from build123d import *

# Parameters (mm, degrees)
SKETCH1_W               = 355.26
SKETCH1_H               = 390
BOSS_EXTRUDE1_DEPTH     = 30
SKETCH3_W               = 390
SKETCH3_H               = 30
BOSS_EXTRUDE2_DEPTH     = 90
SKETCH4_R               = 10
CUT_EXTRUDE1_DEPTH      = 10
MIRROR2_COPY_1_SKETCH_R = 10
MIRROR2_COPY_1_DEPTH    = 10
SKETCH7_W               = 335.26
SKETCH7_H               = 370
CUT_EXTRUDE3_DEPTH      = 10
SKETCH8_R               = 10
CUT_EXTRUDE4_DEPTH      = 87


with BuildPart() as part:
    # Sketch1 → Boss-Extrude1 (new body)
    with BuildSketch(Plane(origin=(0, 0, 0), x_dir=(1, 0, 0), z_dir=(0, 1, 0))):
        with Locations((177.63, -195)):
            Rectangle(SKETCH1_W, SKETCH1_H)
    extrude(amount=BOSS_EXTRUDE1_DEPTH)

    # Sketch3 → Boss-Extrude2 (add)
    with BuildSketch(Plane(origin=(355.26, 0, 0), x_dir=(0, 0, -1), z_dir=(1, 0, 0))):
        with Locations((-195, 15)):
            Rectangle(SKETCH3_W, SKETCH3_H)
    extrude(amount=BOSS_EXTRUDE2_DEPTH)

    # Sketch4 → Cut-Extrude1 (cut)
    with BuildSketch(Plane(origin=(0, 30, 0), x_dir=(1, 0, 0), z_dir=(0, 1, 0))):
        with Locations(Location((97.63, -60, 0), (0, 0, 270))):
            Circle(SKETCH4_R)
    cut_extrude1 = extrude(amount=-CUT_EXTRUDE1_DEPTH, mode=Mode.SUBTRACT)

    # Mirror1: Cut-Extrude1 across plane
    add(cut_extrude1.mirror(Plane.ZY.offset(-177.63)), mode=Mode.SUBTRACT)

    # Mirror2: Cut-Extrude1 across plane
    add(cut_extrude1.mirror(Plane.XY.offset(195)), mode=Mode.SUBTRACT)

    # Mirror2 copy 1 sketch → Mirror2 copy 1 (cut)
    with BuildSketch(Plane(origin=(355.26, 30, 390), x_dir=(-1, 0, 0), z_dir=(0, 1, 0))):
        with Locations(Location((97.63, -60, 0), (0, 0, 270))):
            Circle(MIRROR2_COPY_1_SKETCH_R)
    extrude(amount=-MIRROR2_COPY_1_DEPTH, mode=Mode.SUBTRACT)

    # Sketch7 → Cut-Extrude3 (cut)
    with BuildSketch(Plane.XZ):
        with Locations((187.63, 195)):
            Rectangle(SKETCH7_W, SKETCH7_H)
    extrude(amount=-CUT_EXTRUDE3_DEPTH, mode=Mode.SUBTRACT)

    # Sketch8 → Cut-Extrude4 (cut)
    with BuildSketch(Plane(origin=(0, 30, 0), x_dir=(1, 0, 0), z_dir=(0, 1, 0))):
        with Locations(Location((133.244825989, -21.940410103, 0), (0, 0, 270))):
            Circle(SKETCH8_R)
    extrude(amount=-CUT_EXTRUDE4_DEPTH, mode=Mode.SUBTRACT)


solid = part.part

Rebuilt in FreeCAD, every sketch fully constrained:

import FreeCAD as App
import Part
import Sketcher
Q = App.Units.Quantity

doc = App.newDocument("Part")
body = doc.addObject("PartDesign::Body", "Body")

# Sketch on XZ plane
sketch1 = body.newObject("Sketcher::SketchObject", "Sketch")
sketch1.AttachmentSupport = (doc.getObject("XZ_Plane"), [""])
sketch1.MapMode = "FlatFace"
sketch1.addGeometry([
    Part.LineSegment(App.Vector(0, 0, 0), App.Vector(0, 390, 0)),
    Part.LineSegment(App.Vector(0, 390, 0), App.Vector(355, 390, 0)),
    Part.LineSegment(App.Vector(355, 390, 0), App.Vector(355, 0, 0)),
    Part.LineSegment(App.Vector(355, 0, 0), App.Vector(0, 0, 0)),
], False)
sketch1.addConstraint([
    Sketcher.Constraint("Coincident", 0, 2, 1, 1),
    Sketcher.Constraint("Coincident", 1, 2, 2, 1),
    Sketcher.Constraint("Coincident", 2, 2, 3, 1),
    Sketcher.Constraint("Coincident", 3, 2, 0, 1),
    Sketcher.Constraint("Vertical", 0),
    Sketcher.Constraint("Horizontal", 1),
    Sketcher.Constraint("Vertical", 2),
    Sketcher.Constraint("Horizontal", 3),
    Sketcher.Constraint("Coincident", 3, 2, -1, 1),
    Sketcher.Constraint("DistanceY", 0, 1, 0, 2, Q("390 mm")),
    Sketcher.Constraint("DistanceX", 1, 1, 1, 2, Q("355.26 mm")),
])
pad1 = body.newObject("PartDesign::Pad", "Pad")
pad1.Profile = sketch1
pad1.Length = 30
pad1.Reversed = True

# Sketch on YZ plane
sketch2 = body.newObject("Sketcher::SketchObject", "Sketch001")
sketch2.AttachmentSupport = (doc.getObject("YZ_Plane"), [""])
sketch2.MapMode = "FlatFace"
sketch2.AttachmentOffset = App.Placement(App.Vector(0, 0, 355.26), App.Rotation())
sketch2.addGeometry([
    Part.LineSegment(App.Vector(30, 390, 0), App.Vector(0, 390, 0)),
    Part.LineSegment(App.Vector(0, 390, 0), App.Vector(0, 0, 0)),
    Part.LineSegment(App.Vector(0, 0, 0), App.Vector(30, 0, 0)),
    Part.LineSegment(App.Vector(30, 0, 0), App.Vector(30, 390, 0)),
], False)
sketch2.addConstraint([
    Sketcher.Constraint("Coincident", 0, 2, 1, 1),
    Sketcher.Constraint("Coincident", 1, 2, 2, 1),
    Sketcher.Constraint("Coincident", 2, 2, 3, 1),
    Sketcher.Constraint("Coincident", 3, 2, 0, 1),
    Sketcher.Constraint("Horizontal", 0),
    Sketcher.Constraint("Vertical", 1),
    Sketcher.Constraint("Horizontal", 2),
    Sketcher.Constraint("Vertical", 3),
    Sketcher.Constraint("Coincident", 1, 2, -1, 1),
    Sketcher.Constraint("DistanceX", 0, 2, 0, 1, Q("30 mm")),
    Sketcher.Constraint("DistanceY", 1, 2, 1, 1, Q("390 mm")),
])
pad2 = body.newObject("PartDesign::Pad", "Pad001")
pad2.Profile = sketch2
pad2.Length = 90

# Sketch on XZ plane
sketch3 = body.newObject("Sketcher::SketchObject", "Sketch002")
sketch3.AttachmentSupport = (doc.getObject("XZ_Plane"), [""])
sketch3.MapMode = "FlatFace"
sketch3.AttachmentOffset = App.Placement(App.Vector(0, 0, -30), App.Rotation())
sketch3.addGeometry(Part.Circle(App.Vector(98, 60, 0), App.Vector(0, 0, 1), 10), False)
sketch3.addConstraint([
    Sketcher.Constraint("Diameter", 0, Q("20 mm")),
    Sketcher.Constraint("DistanceY", -1, 1, 0, 3, Q("60 mm")),
    Sketcher.Constraint("DistanceX", -1, 1, 0, 3, Q("97.63 mm")),
])
pocket1 = body.newObject("PartDesign::Pocket", "Pocket")
pocket1.Profile = sketch3
pocket1.Length = 10
pocket1.Reversed = True
doc.recompute()

datumplane = body.newObject("PartDesign::Plane", "DatumPlane")
datumplane.AttachmentSupport = (doc.getObject("YZ_Plane"), [""])
datumplane.MapMode = "FlatFace"
datumplane.AttachmentOffset = App.Placement(App.Vector(0, 0, 177.63), App.Rotation())
mirrored = body.newObject("PartDesign::Mirrored", "Mirrored")
mirrored.Originals = [pocket1]
mirrored.MirrorPlane = (datumplane, [""])
body.Tip = mirrored
doc.recompute()

datumplane2 = body.newObject("PartDesign::Plane", "DatumPlane001")
datumplane2.AttachmentSupport = (doc.getObject("XY_Plane"), [""])
datumplane2.MapMode = "FlatFace"
datumplane2.AttachmentOffset = App.Placement(App.Vector(0, 0, 195), App.Rotation())
mirrored2 = body.newObject("PartDesign::Mirrored", "Mirrored001")
mirrored2.Originals = [pocket1]
mirrored2.MirrorPlane = (datumplane2, [""])
body.Tip = mirrored2

# Sketch on XZ plane
sketch4 = body.newObject("Sketcher::SketchObject", "Sketch003")
sketch4.AttachmentSupport = (doc.getObject("XZ_Plane"), [""])
sketch4.MapMode = "FlatFace"
sketch4.AttachmentOffset = App.Placement(App.Vector(0, 0, -30), App.Rotation())
sketch4.addGeometry(Part.Circle(App.Vector(258, 330, 0), App.Vector(0, 0, 1), 10), False)
sketch4.addConstraint([
    Sketcher.Constraint("Diameter", 0, Q("20 mm")),
    Sketcher.Constraint("DistanceY", -1, 1, 0, 3, Q("330 mm")),
    Sketcher.Constraint("DistanceX", -1, 1, 0, 3, Q("257.63 mm")),
])
pocket2 = body.newObject("PartDesign::Pocket", "Pocket001")
pocket2.Profile = sketch4
pocket2.Length = 10
pocket2.Reversed = True

# Sketch on XZ plane
sketch5 = body.newObject("Sketcher::SketchObject", "Sketch004")
sketch5.AttachmentSupport = (doc.getObject("XZ_Plane"), [""])
sketch5.MapMode = "FlatFace"
sketch5.addGeometry([
    Part.LineSegment(App.Vector(20, 380, 0), App.Vector(20, 10, 0)),
    Part.LineSegment(App.Vector(20, 10, 0), App.Vector(355, 10, 0)),
    Part.LineSegment(App.Vector(355, 10, 0), App.Vector(355, 380, 0)),
    Part.LineSegment(App.Vector(355, 380, 0), App.Vector(20, 380, 0)),
], False)
sketch5.addConstraint([
    Sketcher.Constraint("Coincident", 0, 2, 1, 1),
    Sketcher.Constraint("Coincident", 1, 2, 2, 1),
    Sketcher.Constraint("Coincident", 2, 2, 3, 1),
    Sketcher.Constraint("Coincident", 3, 2, 0, 1),
    Sketcher.Constraint("Vertical", 0),
    Sketcher.Constraint("Horizontal", 1),
    Sketcher.Constraint("Vertical", 2),
    Sketcher.Constraint("Horizontal", 3),
    Sketcher.Constraint("DistanceY", 0, 2, 0, 1, Q("370 mm")),
    Sketcher.Constraint("DistanceX", -1, 1, 0, 2, Q("20 mm")),
    Sketcher.Constraint("DistanceY", -1, 1, 0, 2, Q("10 mm")),
    Sketcher.Constraint("DistanceX", 1, 1, 1, 2, Q("335.26 mm")),
])
pocket3 = body.newObject("PartDesign::Pocket", "Pocket002")
pocket3.Profile = sketch5
pocket3.Length = 10

# Sketch on XZ plane
sketch6 = body.newObject("Sketcher::SketchObject", "Sketch005")
sketch6.AttachmentSupport = (doc.getObject("XZ_Plane"), [""])
sketch6.MapMode = "FlatFace"
sketch6.AttachmentOffset = App.Placement(App.Vector(0, 0, -30), App.Rotation())
sketch6.addGeometry(Part.Circle(App.Vector(133, 22, 0), App.Vector(0, 0, 1), 10), False)
sketch6.addConstraint([
    Sketcher.Constraint("Diameter", 0, Q("20 mm")),
    Sketcher.Constraint("DistanceY", -1, 1, 0, 3, Q("21.94041 mm")),
    Sketcher.Constraint("DistanceX", -1, 1, 0, 3, Q("133.244826 mm")),
])
pocket4 = body.newObject("PartDesign::Pocket", "Pocket003")
pocket4.Profile = sketch6
pocket4.Length = 87
pocket4.Reversed = True

doc.recompute()
